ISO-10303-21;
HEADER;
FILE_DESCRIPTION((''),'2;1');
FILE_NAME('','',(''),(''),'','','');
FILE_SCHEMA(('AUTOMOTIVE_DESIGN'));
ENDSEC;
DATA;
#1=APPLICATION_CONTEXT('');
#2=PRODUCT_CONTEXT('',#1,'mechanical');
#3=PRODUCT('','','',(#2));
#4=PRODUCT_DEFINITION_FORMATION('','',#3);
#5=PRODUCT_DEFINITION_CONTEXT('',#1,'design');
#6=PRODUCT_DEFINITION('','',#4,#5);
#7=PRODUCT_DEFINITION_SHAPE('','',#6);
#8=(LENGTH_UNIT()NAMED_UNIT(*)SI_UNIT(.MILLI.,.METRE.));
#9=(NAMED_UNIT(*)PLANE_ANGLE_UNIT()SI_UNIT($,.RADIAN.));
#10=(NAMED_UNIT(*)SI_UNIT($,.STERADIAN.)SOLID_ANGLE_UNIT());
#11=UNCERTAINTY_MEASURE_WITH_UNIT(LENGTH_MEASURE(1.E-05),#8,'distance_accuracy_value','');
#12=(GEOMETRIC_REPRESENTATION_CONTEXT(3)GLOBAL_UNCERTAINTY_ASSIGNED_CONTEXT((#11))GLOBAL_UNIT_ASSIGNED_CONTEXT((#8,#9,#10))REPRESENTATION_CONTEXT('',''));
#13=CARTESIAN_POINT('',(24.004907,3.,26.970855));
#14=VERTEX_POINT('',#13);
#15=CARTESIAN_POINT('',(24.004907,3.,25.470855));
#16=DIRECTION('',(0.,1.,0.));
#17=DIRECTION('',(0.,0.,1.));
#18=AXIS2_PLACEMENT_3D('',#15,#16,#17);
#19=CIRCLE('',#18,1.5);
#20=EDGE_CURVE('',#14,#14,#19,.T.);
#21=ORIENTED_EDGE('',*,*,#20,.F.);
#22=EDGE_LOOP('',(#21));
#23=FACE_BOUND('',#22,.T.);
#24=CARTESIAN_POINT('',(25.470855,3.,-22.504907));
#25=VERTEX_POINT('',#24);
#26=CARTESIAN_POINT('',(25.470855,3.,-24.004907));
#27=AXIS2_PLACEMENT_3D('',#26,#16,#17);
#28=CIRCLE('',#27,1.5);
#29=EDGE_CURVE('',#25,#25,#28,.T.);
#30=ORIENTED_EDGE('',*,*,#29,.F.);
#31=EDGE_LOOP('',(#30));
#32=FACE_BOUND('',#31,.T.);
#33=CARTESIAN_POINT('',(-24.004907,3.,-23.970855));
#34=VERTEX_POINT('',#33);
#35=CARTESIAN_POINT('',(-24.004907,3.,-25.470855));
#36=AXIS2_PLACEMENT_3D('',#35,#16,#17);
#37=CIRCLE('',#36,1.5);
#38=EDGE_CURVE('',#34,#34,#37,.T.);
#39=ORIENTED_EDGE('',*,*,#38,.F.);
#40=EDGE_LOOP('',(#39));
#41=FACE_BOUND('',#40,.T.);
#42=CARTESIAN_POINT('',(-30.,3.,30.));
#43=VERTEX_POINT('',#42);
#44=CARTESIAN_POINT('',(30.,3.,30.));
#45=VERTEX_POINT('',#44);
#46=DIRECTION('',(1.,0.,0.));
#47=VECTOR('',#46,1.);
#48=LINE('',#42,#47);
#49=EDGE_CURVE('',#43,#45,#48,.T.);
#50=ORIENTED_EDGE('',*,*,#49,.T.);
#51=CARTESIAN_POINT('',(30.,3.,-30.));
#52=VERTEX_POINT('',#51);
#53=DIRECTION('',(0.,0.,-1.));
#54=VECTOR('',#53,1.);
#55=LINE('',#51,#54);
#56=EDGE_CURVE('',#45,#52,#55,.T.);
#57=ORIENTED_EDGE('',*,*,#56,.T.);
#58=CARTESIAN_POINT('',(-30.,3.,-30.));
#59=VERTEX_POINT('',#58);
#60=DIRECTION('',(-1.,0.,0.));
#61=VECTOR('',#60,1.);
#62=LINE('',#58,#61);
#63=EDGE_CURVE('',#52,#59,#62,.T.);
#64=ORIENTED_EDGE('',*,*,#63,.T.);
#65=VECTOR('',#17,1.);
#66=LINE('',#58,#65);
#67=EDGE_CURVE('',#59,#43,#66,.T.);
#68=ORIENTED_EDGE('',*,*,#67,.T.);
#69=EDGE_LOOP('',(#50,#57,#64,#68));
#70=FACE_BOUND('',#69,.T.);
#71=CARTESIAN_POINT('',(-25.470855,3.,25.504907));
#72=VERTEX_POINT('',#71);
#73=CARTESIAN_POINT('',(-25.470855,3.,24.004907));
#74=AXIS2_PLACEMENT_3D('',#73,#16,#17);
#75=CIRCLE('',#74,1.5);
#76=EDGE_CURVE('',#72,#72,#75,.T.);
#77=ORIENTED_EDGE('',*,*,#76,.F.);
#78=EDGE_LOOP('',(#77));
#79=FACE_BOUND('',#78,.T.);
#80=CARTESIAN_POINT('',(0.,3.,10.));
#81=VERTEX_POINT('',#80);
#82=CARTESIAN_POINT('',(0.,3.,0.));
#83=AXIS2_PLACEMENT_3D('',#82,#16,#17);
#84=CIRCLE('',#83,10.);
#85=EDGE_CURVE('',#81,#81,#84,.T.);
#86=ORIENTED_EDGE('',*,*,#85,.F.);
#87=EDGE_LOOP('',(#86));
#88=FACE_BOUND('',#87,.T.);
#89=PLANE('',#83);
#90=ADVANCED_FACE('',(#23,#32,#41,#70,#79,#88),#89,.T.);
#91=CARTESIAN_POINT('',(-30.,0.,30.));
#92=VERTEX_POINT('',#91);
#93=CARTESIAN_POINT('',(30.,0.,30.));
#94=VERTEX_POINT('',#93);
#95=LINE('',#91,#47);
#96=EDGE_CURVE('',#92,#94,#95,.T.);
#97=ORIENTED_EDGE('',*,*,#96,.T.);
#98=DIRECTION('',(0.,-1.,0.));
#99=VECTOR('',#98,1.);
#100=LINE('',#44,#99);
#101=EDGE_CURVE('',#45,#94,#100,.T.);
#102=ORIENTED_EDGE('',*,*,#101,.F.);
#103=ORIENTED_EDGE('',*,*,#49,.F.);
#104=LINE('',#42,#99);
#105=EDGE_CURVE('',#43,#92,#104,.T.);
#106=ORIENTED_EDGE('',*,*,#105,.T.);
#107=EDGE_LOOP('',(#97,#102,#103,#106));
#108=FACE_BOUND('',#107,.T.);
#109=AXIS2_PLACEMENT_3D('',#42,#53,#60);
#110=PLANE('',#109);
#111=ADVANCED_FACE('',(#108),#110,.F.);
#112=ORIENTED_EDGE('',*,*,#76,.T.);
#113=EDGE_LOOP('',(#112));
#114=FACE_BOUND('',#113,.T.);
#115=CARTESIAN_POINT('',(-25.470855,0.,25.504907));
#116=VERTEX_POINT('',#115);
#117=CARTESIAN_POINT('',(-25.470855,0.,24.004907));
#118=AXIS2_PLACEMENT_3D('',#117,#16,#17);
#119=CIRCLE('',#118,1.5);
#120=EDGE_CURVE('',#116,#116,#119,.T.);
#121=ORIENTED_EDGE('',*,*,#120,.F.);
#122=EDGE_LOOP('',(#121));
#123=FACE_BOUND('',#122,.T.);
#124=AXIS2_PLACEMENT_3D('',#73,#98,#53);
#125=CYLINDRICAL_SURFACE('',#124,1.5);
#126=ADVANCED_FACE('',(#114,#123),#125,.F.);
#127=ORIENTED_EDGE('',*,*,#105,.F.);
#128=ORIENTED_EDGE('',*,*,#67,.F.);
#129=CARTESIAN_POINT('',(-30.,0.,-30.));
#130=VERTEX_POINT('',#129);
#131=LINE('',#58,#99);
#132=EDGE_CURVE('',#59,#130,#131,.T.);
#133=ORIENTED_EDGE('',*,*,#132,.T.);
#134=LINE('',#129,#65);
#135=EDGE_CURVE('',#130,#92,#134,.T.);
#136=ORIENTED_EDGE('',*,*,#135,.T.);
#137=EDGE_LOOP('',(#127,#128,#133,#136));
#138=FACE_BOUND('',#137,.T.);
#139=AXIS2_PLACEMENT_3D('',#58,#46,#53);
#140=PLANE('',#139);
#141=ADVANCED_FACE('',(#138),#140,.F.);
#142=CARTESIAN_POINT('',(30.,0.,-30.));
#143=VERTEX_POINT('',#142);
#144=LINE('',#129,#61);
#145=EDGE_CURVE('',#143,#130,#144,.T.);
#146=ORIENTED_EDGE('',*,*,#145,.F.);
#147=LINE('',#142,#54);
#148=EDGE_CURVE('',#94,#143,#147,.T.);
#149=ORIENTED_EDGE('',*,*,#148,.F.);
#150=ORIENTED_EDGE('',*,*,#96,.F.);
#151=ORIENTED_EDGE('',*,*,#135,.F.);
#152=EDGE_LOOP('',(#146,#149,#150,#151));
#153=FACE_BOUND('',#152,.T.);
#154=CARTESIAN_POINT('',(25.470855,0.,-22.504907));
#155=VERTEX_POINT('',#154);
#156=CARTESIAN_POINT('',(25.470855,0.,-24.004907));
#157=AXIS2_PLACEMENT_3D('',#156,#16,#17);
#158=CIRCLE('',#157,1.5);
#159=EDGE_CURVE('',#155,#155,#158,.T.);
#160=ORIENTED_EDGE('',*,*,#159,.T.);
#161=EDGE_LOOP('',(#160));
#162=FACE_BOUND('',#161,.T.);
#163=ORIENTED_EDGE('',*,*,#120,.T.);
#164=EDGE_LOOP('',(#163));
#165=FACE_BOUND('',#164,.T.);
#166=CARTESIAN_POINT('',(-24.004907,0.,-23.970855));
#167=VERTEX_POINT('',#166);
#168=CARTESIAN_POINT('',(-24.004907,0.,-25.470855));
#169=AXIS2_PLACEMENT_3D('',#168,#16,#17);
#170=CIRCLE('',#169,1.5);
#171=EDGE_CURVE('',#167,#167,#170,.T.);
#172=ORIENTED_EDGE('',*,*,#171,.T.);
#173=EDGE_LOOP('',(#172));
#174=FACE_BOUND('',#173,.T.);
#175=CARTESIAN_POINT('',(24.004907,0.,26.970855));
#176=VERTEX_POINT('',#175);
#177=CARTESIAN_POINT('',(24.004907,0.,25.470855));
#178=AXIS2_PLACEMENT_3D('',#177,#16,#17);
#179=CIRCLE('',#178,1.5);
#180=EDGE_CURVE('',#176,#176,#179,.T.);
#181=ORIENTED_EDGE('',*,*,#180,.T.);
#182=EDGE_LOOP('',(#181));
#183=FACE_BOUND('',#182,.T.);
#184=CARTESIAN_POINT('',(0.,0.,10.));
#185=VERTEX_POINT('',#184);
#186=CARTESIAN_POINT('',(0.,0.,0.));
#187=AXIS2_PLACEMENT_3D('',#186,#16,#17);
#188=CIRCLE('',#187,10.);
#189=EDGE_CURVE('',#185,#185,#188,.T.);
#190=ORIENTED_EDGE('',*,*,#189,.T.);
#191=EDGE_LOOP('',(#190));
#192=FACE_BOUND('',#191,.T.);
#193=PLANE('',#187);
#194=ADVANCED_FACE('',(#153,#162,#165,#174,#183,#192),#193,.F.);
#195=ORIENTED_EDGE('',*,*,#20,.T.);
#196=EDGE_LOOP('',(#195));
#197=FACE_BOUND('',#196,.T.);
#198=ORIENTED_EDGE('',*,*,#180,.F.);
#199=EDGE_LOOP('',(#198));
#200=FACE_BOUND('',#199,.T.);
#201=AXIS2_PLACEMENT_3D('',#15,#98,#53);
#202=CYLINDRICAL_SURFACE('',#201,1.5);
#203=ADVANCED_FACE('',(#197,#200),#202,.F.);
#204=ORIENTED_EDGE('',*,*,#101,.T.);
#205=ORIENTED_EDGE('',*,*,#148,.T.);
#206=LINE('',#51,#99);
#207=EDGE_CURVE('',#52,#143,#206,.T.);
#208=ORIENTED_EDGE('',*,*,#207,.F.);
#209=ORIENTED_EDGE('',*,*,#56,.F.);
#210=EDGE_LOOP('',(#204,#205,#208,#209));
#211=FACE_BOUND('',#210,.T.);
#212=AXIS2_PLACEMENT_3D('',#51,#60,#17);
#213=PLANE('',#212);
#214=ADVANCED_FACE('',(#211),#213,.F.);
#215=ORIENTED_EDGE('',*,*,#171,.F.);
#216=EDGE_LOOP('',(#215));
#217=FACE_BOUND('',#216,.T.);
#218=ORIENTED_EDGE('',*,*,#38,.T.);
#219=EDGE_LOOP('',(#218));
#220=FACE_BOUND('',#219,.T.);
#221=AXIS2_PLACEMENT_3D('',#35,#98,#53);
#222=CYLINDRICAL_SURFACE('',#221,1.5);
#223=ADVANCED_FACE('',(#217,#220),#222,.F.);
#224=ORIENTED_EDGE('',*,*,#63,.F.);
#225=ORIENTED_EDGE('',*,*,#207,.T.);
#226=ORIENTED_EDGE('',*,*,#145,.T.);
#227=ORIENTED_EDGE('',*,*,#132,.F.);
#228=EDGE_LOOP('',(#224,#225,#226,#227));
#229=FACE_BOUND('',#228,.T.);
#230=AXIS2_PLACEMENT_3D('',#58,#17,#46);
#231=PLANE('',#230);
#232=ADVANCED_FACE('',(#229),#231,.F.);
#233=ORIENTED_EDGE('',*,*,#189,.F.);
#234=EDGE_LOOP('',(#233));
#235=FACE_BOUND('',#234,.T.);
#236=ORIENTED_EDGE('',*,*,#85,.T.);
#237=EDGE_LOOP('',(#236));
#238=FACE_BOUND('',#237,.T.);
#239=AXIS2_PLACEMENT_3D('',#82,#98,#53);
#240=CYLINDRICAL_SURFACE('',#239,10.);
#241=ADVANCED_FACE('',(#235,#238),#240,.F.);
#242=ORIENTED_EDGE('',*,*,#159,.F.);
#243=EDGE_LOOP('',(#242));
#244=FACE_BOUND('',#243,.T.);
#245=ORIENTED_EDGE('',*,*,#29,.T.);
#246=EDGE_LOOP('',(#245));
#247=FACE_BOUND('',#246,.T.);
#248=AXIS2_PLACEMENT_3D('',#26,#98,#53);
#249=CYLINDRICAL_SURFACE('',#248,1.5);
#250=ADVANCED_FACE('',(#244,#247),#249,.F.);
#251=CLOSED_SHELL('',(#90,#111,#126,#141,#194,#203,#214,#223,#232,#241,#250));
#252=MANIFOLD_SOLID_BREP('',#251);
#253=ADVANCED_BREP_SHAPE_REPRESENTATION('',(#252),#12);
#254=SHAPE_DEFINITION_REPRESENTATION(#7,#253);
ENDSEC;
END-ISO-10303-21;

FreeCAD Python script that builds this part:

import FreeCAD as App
import Part
import Sketcher
from FreeCAD import Vector


def add_polygon(sketch, points):
    """Adds a closed chain of lines whose ends are joined by coincident constraints."""
    first, n = sketch.GeometryCount, len(points)
    for a, b in zip(points, points[1:] + points[:1]):
        sketch.addGeometry(Part.LineSegment(App.Vector(*a, 0), App.Vector(*b, 0)), False)
    for i in range(n):
        sketch.addConstraint(Sketcher.Constraint("Coincident", first + i, 2, first + (i + 1) % n, 1))

doc = App.newDocument("Part")
params = doc.addObject("Spreadsheet::Sheet", "Params")
for row, (alias, value) in enumerate([
    ("sketch1_diameter", "3 mm"),
    ("sketch1_diameter2", "20 mm"),
    ("sketch1_width", "60 mm"),
    ("pad1_length", "3 mm"),
], start=1):
    params.set(f"A{row}", alias)
    params.set(f"B{row}", "=" + value)
    params.setAlias(f"B{row}", alias)

body = doc.addObject("PartDesign::Body", "Body")

sketch1 = doc.addObject("Sketcher::SketchObject", "Sketch")
body.addObject(sketch1)
sketch1.AttachmentSupport = (doc.XZ_Plane, [""])
sketch1.MapMode = "FlatFace"
add_polygon(sketch1, [(-30, -30), (-30, 30), (30, 30), (30, -30)])
sketch1.addGeometry(Part.Circle(Vector(-25.5, 24, 0), Vector(0, 0, 1), 1.5), False)
sketch1.addGeometry(Part.Circle(Vector(0, 0, 0), Vector(0, 0, 1), 10), False)
sketch1.addGeometry(Part.Circle(Vector(24, 25.5, 0), Vector(0, 0, 1), 1.5), False)
sketch1.addGeometry(Part.Circle(Vector(-24, -25.5, 0), Vector(0, 0, 1), 1.5), False)
sketch1.addGeometry(Part.Circle(Vector(25.5, -24, 0), Vector(0, 0, 1), 1.5), False)
sketch1.addConstraint([
    Sketcher.Constraint("Vertical", 0),
    Sketcher.Constraint("Horizontal", 1),
    Sketcher.Constraint("Vertical", 2),
    Sketcher.Constraint("Horizontal", 3),
    Sketcher.Constraint("Coincident", 5, 3, -1, 1),
    Sketcher.Constraint("Equal", 4, 6),
    Sketcher.Constraint("Equal", 6, 7),
    Sketcher.Constraint("Equal", 7, 8),
    Sketcher.Constraint("Symmetric", 6, 3, 7, 3, -1, 1),
    Sketcher.Constraint("Symmetric", 4, 3, 8, 3, -1, 1),
    Sketcher.Constraint("Symmetric", 0, 2, 2, 2, -1, 1),
    Sketcher.Constraint("Equal", 3, 0),
    Sketcher.Constraint("Diameter", 4, 3.0),
    Sketcher.Constraint("Diameter", 5, 20.0),
    Sketcher.Constraint("DistanceX", 1, 1, 1, 2, 60.0),
    Sketcher.Constraint("DistanceX", 4, 3, 6, 3, 49.475762),
    Sketcher.Constraint("DistanceY", 4, 3, 6, 3, 1.465948),
    Sketcher.Constraint("DistanceX", 4, 3, 7, 3, 1.465948),
    Sketcher.Constraint("DistanceY", 7, 3, 4, 3, 49.475762),
])
sketch1.setExpression("Constraints[16]", "Params.sketch1_diameter")
sketch1.setExpression("Constraints[17]", "Params.sketch1_diameter2")
sketch1.setExpression("Constraints[18]", "Params.sketch1_width")
pad1 = doc.addObject("PartDesign::Pad", "Pad")
body.addObject(pad1)
pad1.Profile = sketch1
pad1.setExpression("Length", "Params.pad1_length")
pad1.Reversed = True

doc.recompute()
